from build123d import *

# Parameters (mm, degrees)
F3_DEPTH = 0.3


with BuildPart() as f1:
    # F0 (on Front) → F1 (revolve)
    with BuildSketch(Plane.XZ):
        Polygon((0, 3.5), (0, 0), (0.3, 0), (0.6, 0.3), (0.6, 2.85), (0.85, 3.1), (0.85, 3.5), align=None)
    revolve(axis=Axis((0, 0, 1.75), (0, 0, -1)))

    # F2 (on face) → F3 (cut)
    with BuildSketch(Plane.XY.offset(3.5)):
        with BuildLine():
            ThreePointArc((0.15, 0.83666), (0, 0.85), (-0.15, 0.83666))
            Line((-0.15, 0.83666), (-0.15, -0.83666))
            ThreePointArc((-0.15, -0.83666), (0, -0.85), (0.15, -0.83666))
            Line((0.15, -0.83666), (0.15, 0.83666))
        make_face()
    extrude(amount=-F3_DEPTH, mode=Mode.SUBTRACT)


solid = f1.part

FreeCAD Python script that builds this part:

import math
import FreeCAD as App
import Part
import Sketcher
Q = App.Units.Quantity

doc = App.newDocument("Part")
body = doc.addObject("PartDesign::Body", "Body")

# Sketch on XZ plane
sketch1 = doc.addObject("Sketcher::SketchObject", "Sketch")
body.addObject(sketch1)
sketch1.AttachmentSupport = (doc.XZ_Plane, [""])
sketch1.MapMode = "FlatFace"
sketch1.addGeometry(Part.LineSegment(App.Vector(0, 3.5, 0), App.Vector(0, 0, 0)), False)
sketch1.addGeometry(Part.LineSegment(App.Vector(0, 0, 0), App.Vector(0.3, 0, 0)), False)
sketch1.addGeometry(Part.LineSegment(App.Vector(0.3, 0, 0), App.Vector(0.6, 0.3, 0)), False)
sketch1.addGeometry(Part.LineSegment(App.Vector(0.6, 0.3, 0), App.Vector(0.6, 2.85, 0)), False)
sketch1.addGeometry(Part.LineSegment(App.Vector(0.6, 2.85, 0), App.Vector(0.85, 3.1, 0)), False)
sketch1.addGeometry(Part.LineSegment(App.Vector(0.85, 3.1, 0), App.Vector(0.85, 3.5, 0)), False)
sketch1.addGeometry(Part.LineSegment(App.Vector(0.85, 3.5, 0), App.Vector(0, 3.5, 0)), False)
sketch1.addConstraint(Sketcher.Constraint("Coincident", 0, 2, 1, 1))
sketch1.addConstraint(Sketcher.Constraint("Coincident", 1, 2, 2, 1))
sketch1.addConstraint(Sketcher.Constraint("Coincident", 2, 2, 3, 1))
sketch1.addConstraint(Sketcher.Constraint("Coincident", 3, 2, 4, 1))
sketch1.addConstraint(Sketcher.Constraint("Coincident", 4, 2, 5, 1))
sketch1.addConstraint(Sketcher.Constraint("Coincident", 5, 2, 6, 1))
sketch1.addConstraint(Sketcher.Constraint("Coincident", 6, 2, 0, 1))
sketch1.addConstraint(Sketcher.Constraint("Vertical", 0))
sketch1.addConstraint(Sketcher.Constraint("Horizontal", 1))
sketch1.addConstraint(Sketcher.Constraint("Vertical", 3))
sketch1.addConstraint(Sketcher.Constraint("Vertical", 5))
sketch1.addConstraint(Sketcher.Constraint("Horizontal", 6))
sketch1.addConstraint(Sketcher.Constraint("Coincident", 0, 2, -1, 1))
sketch1.addConstraint(Sketcher.Constraint("Parallel", 2, 4))
sketch1.addConstraint(Sketcher.Constraint("Angle", 2, Q("45 deg")))
sketch1.addConstraint(Sketcher.Constraint("DistanceX", 1, 1, 1, 2, Q("0.3 mm")))
sketch1.addConstraint(Sketcher.Constraint("DistanceY", 0, 2, 0, 1, Q("3.5 mm")))
sketch1.addConstraint(Sketcher.Constraint("DistanceY", 5, 1, 5, 2, Q("0.4 mm")))
sketch1.addConstraint(Sketcher.Constraint("DistanceX", 6, 2, 6, 1, Q("0.85 mm")))
sketch1.addConstraint(Sketcher.Constraint("DistanceX", -1, 1, 2, 2, Q("0.6 mm")))
revolution = doc.addObject("PartDesign::Revolution", "Revolution")
body.addObject(revolution)
revolution.Profile = sketch1
revolution.ReferenceAxis = (sketch1, ["V_Axis"])
revolution.Angle = 360

# Sketch on XY plane
sketch2 = doc.addObject("Sketcher::SketchObject", "Sketch001")
body.addObject(sketch2)
sketch2.AttachmentSupport = (doc.XY_Plane, [""])
sketch2.MapMode = "FlatFace"
sketch2.AttachmentOffset = App.Placement(App.Vector(0, 0, 3.5), App.Rotation())
sketch2.addGeometry(Part.ArcOfCircle(Part.Circle(App.Vector(0, 0.000002, 0), App.Vector(0, 0, 1), 0.849998), math.radians(79.835731), math.radians(100.164269)), False)
sketch2.addGeometry(Part.LineSegment(App.Vector(-0.15, 0.83666, 0), App.Vector(-0.15, -0.83666, 0)), False)
sketch2.addGeometry(Part.ArcOfCircle(Part.Circle(App.Vector(0, -0.000002, 0), App.Vector(0, 0, 1), 0.849998), math.radians(-100.164269), math.radians(-79.835731)), False)
sketch2.addGeometry(Part.LineSegment(App.Vector(0.15, -0.83666, 0), App.Vector(0.15, 0.83666, 0)), False)
sketch2.addConstraint(Sketcher.Constraint("Coincident", 0, 2, 1, 1))
sketch2.addConstraint(Sketcher.Constraint("Coincident", 1, 2, 2, 1))
sketch2.addConstraint(Sketcher.Constraint("Coincident", 2, 2, 3, 1))
sketch2.addConstraint(Sketcher.Constraint("Coincident", 3, 2, 0, 1))
sketch2.addConstraint(Sketcher.Constraint("Vertical", 1))
sketch2.addConstraint(Sketcher.Constraint("Vertical", 3))
sketch2.addConstraint(Sketcher.Constraint("Coincident", 0, 3, -1, 1))
sketch2.addConstraint(Sketcher.Constraint("Coincident", 2, 3, -1, 1))
sketch2.addConstraint(Sketcher.Constraint("Equal", 0, 2))
sketch2.addConstraint(Sketcher.Constraint("Horizontal", 1, 2, 2, 2))
sketch2.addConstraint(Sketcher.Constraint("Radius", 0, Q("0.849998 mm")))
sketch2.addConstraint(Sketcher.Constraint("DistanceX", 1, 2, 2, 2, Q("0.3 mm")))
pocket1 = doc.addObject("PartDesign::Pocket", "Pocket")
body.addObject(pocket1)
pocket1.Profile = sketch2
pocket1.Length = 0.3

doc.recompute()
